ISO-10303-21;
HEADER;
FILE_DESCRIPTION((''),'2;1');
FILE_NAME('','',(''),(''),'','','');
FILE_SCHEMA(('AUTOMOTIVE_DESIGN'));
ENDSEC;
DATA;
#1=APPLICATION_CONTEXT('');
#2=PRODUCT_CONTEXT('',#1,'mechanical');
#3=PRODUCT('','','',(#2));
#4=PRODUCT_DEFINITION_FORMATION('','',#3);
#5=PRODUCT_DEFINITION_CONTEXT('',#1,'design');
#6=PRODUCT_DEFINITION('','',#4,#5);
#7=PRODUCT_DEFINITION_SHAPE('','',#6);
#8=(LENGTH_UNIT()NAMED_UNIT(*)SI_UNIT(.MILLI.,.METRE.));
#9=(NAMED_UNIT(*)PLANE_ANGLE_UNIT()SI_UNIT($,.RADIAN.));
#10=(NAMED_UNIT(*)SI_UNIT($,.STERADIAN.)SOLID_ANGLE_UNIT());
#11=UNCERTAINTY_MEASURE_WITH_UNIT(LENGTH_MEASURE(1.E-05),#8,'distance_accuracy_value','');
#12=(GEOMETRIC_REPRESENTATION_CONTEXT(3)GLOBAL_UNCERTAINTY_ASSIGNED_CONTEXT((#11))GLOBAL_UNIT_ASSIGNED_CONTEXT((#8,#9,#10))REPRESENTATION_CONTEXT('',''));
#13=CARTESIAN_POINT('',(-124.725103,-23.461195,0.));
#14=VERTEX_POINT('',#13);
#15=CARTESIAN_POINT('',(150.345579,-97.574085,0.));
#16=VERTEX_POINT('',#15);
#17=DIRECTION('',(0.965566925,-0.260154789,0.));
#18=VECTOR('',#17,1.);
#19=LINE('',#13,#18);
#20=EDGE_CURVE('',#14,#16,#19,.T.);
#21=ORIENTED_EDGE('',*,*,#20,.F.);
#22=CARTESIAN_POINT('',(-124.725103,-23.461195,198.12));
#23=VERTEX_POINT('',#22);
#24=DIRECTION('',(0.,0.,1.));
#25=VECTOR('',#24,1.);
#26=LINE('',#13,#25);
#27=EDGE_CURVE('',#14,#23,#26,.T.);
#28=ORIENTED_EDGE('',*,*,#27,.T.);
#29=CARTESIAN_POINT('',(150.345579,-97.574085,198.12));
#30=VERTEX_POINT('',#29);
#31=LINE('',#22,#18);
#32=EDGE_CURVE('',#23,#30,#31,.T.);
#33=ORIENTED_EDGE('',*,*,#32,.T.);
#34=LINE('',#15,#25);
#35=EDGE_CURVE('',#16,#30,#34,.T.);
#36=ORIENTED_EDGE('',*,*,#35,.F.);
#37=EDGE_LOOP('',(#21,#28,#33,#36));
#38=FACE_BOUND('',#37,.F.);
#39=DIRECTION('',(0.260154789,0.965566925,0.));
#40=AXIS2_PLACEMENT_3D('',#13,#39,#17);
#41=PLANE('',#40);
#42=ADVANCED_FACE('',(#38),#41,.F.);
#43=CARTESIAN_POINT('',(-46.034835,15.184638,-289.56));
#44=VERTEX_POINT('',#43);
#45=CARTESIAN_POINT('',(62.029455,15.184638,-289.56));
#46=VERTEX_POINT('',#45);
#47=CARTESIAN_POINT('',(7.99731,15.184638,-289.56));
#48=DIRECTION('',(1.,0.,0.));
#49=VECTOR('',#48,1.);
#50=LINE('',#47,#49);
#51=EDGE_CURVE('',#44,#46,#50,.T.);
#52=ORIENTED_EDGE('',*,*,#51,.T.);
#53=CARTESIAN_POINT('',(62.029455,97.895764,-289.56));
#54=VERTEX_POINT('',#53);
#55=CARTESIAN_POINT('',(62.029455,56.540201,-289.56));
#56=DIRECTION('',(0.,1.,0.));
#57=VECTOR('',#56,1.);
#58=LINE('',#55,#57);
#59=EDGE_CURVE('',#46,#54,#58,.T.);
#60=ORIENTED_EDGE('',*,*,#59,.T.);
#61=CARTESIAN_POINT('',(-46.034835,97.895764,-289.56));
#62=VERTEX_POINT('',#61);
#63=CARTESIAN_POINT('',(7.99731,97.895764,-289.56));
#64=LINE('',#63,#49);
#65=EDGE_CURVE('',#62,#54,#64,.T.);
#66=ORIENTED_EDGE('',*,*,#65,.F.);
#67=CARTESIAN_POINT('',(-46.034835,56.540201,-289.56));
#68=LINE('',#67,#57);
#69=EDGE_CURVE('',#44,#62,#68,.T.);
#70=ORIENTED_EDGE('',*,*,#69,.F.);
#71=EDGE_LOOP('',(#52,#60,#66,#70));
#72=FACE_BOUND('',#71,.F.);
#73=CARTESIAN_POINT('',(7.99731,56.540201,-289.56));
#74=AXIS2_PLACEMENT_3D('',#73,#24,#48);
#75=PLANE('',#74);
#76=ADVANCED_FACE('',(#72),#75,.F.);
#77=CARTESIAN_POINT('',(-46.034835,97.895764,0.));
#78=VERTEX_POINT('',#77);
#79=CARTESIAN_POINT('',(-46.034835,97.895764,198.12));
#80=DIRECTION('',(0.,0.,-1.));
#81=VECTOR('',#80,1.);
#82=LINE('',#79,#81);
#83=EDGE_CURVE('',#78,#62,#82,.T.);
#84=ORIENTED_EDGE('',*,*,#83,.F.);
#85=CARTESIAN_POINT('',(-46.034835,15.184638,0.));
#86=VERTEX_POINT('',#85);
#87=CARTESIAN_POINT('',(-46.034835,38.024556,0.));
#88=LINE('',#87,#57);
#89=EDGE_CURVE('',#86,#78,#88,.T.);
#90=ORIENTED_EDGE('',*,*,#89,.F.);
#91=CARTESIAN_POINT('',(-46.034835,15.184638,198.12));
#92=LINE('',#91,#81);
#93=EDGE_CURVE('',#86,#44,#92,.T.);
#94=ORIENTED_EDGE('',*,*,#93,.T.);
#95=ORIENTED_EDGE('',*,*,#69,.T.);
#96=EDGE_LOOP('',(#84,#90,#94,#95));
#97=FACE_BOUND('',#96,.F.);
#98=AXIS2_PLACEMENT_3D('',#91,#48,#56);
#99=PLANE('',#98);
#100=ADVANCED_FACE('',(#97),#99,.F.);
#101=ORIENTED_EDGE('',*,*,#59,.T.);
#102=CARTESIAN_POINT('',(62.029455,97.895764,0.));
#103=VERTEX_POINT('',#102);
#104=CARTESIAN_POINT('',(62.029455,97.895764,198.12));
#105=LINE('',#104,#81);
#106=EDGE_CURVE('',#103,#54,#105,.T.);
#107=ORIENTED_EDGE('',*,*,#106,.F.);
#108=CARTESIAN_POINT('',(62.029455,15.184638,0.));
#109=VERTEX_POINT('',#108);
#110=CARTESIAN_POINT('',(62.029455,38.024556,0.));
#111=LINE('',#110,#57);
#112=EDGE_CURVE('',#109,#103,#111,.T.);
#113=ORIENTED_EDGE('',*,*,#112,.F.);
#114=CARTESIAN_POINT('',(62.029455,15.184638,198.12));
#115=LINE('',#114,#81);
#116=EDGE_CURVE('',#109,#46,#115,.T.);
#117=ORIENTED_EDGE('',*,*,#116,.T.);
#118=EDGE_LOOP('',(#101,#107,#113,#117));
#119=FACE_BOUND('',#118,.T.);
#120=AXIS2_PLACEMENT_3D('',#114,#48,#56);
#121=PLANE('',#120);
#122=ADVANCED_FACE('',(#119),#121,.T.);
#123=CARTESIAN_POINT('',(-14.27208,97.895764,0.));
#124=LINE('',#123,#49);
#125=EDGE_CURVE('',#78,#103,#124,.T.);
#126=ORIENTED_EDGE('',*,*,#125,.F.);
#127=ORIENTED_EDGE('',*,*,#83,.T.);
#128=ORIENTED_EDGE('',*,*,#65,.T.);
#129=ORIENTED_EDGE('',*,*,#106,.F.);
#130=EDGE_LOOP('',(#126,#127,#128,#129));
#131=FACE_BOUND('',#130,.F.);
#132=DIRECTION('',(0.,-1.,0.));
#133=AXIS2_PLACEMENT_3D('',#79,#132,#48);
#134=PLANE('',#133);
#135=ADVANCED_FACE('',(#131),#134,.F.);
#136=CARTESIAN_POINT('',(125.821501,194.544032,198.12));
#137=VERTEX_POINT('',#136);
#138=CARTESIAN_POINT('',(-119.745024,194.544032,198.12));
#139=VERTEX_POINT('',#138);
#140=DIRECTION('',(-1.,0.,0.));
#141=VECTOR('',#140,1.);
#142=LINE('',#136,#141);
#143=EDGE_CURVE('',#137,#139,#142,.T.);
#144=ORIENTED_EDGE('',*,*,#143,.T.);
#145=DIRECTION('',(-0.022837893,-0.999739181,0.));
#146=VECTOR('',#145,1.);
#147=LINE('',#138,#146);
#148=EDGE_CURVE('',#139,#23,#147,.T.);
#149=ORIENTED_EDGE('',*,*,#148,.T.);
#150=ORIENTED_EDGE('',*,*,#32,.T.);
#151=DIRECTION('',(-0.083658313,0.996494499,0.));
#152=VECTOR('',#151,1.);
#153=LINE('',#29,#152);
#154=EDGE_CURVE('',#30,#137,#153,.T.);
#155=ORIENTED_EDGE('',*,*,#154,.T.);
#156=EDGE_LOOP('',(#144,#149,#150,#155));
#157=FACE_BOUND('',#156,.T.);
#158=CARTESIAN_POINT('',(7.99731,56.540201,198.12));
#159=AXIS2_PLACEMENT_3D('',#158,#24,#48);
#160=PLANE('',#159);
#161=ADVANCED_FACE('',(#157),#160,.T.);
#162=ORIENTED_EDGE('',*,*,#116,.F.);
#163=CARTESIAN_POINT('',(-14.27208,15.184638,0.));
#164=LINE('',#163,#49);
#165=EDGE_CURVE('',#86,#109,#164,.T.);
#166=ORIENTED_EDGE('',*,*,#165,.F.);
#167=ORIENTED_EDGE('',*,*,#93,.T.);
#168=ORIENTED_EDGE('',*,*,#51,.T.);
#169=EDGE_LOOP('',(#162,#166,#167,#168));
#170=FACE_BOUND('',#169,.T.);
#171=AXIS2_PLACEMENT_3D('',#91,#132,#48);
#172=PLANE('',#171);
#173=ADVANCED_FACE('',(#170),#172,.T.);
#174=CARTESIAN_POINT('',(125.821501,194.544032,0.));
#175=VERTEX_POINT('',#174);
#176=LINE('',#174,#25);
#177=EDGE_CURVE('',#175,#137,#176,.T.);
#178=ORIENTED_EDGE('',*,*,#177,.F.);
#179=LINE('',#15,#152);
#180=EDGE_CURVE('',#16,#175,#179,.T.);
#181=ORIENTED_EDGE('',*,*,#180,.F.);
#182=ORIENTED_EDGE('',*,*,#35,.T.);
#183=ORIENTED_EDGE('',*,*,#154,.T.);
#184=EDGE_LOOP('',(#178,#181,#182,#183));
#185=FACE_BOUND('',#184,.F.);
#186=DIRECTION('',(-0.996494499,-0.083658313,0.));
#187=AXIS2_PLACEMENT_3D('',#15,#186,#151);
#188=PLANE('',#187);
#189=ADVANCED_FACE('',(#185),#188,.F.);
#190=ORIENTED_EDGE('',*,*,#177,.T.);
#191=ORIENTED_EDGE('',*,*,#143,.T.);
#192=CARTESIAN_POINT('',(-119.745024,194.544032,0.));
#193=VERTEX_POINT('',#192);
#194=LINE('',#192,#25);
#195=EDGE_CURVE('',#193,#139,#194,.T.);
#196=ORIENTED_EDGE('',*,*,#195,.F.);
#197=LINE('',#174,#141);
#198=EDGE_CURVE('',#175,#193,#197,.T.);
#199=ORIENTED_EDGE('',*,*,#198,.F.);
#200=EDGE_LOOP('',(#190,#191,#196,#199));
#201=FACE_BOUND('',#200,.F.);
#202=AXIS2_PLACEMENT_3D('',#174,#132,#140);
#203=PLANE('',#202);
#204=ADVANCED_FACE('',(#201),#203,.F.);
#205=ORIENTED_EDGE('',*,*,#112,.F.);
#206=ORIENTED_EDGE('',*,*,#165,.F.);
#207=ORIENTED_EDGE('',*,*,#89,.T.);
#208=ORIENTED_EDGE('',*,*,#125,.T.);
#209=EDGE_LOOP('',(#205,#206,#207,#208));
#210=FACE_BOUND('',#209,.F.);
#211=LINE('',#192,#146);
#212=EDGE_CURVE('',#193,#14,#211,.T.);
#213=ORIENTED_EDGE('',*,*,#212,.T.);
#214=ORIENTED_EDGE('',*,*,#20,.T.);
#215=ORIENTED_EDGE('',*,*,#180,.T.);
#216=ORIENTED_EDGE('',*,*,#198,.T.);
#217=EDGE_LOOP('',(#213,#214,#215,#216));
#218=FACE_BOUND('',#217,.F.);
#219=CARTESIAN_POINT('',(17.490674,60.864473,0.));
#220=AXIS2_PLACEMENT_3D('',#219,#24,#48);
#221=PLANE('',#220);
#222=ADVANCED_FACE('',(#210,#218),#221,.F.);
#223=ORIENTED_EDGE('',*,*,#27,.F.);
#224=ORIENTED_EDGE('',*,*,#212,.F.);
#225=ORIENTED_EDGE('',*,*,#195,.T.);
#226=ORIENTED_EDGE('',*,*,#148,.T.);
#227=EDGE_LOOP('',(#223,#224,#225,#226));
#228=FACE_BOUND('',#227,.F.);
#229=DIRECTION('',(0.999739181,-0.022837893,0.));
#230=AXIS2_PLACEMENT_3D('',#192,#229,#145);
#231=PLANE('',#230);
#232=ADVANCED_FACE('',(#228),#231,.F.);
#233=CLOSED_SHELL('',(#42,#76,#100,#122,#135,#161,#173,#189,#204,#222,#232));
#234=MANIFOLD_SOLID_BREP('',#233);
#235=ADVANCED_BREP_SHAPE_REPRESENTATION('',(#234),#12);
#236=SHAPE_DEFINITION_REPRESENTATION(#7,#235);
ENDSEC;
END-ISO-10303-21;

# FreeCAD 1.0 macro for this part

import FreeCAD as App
import Part
import Sketcher
Q = App.Units.Quantity


def add_polygon(sketch, points):
    """Adds a closed chain of lines whose ends are joined by coincident constraints."""
    first, n = sketch.GeometryCount, len(points)
    for a, b in zip(points, points[1:] + points[:1]):
        sketch.addGeometry(Part.LineSegment(App.Vector(*a, 0), App.Vector(*b, 0)), False)
    for i in range(n):
        sketch.addConstraint(Sketcher.Constraint("Coincident", first + i, 2, first + (i + 1) % n, 1))

doc = App.newDocument("Part")
body = doc.addObject("PartDesign::Body", "Body")

# Sketch on XY plane
sketch1 = doc.addObject("Sketcher::SketchObject", "Sketch")
body.addObject(sketch1)
sketch1.AttachmentSupport = (doc.XY_Plane, [""])
sketch1.MapMode = "FlatFace"
add_polygon(sketch1, [(-119.745024, 194.544032), (-124.725103, -23.461195), (150.345579, -97.574085), (125.821501, 194.544032)])  # lines 0-3
sketch1.addConstraint([
    Sketcher.Constraint("Horizontal", 3),
    Sketcher.Constraint("Distance", 0, 218.062102),
    Sketcher.Constraint("DistanceX", -1, 1, 2, 2, 125.821501),
    Sketcher.Constraint("Distance", 2, 293.14574),
    Sketcher.Constraint("DistanceX", 3, 2, 3, 1, 245.566525),
    Sketcher.Constraint("DistanceX", -1, 1, 1, 2, 150.345579),
    Sketcher.Constraint("DistanceY", -1, 1, 2, 2, 194.544032),
    Sketcher.Constraint("DistanceX", 0, 2, 1, 2, 275.070682),
])
pad1 = doc.addObject("PartDesign::Pad", "Pad")
body.addObject(pad1)
pad1.Profile = sketch1
pad1.Length = Q("7.8 in")

# Sketch on XY plane
sketch2 = doc.addObject("Sketcher::SketchObject", "Sketch001")
body.addObject(sketch2)
sketch2.AttachmentSupport = (doc.XY_Plane, [""])
sketch2.MapMode = "FlatFace"
sketch2.AttachmentOffset = App.Placement(App.Vector(0, 0, 7.8 * 25.4), App.Rotation())
add_polygon(sketch2, [(-46.034835, 97.895764), (-46.034835, 15.184638), (62.029455, 15.184638), (62.029455, 97.895764)])  # lines 0-3
sketch2.addConstraint([
    Sketcher.Constraint("Vertical", 0),
    Sketcher.Constraint("Horizontal", 1),
    Sketcher.Constraint("Vertical", 2),
    Sketcher.Constraint("Horizontal", 3),
    Sketcher.Constraint("DistanceX", 1, 1, 1, 2, 108.06429),
    Sketcher.Constraint("DistanceY", 0, 2, 0, 1, 82.711126),
    Sketcher.Constraint("DistanceX", 0, 2, -1, 1, 46.034835),
    Sketcher.Constraint("DistanceY", -1, 1, 0, 2, 15.184638),
])
pad2 = doc.addObject("PartDesign::Pad", "Pad001")
body.addObject(pad2)
pad2.Profile = sketch2
pad2.Length = Q("19.2 in")
pad2.Reversed = True

doc.recompute()
